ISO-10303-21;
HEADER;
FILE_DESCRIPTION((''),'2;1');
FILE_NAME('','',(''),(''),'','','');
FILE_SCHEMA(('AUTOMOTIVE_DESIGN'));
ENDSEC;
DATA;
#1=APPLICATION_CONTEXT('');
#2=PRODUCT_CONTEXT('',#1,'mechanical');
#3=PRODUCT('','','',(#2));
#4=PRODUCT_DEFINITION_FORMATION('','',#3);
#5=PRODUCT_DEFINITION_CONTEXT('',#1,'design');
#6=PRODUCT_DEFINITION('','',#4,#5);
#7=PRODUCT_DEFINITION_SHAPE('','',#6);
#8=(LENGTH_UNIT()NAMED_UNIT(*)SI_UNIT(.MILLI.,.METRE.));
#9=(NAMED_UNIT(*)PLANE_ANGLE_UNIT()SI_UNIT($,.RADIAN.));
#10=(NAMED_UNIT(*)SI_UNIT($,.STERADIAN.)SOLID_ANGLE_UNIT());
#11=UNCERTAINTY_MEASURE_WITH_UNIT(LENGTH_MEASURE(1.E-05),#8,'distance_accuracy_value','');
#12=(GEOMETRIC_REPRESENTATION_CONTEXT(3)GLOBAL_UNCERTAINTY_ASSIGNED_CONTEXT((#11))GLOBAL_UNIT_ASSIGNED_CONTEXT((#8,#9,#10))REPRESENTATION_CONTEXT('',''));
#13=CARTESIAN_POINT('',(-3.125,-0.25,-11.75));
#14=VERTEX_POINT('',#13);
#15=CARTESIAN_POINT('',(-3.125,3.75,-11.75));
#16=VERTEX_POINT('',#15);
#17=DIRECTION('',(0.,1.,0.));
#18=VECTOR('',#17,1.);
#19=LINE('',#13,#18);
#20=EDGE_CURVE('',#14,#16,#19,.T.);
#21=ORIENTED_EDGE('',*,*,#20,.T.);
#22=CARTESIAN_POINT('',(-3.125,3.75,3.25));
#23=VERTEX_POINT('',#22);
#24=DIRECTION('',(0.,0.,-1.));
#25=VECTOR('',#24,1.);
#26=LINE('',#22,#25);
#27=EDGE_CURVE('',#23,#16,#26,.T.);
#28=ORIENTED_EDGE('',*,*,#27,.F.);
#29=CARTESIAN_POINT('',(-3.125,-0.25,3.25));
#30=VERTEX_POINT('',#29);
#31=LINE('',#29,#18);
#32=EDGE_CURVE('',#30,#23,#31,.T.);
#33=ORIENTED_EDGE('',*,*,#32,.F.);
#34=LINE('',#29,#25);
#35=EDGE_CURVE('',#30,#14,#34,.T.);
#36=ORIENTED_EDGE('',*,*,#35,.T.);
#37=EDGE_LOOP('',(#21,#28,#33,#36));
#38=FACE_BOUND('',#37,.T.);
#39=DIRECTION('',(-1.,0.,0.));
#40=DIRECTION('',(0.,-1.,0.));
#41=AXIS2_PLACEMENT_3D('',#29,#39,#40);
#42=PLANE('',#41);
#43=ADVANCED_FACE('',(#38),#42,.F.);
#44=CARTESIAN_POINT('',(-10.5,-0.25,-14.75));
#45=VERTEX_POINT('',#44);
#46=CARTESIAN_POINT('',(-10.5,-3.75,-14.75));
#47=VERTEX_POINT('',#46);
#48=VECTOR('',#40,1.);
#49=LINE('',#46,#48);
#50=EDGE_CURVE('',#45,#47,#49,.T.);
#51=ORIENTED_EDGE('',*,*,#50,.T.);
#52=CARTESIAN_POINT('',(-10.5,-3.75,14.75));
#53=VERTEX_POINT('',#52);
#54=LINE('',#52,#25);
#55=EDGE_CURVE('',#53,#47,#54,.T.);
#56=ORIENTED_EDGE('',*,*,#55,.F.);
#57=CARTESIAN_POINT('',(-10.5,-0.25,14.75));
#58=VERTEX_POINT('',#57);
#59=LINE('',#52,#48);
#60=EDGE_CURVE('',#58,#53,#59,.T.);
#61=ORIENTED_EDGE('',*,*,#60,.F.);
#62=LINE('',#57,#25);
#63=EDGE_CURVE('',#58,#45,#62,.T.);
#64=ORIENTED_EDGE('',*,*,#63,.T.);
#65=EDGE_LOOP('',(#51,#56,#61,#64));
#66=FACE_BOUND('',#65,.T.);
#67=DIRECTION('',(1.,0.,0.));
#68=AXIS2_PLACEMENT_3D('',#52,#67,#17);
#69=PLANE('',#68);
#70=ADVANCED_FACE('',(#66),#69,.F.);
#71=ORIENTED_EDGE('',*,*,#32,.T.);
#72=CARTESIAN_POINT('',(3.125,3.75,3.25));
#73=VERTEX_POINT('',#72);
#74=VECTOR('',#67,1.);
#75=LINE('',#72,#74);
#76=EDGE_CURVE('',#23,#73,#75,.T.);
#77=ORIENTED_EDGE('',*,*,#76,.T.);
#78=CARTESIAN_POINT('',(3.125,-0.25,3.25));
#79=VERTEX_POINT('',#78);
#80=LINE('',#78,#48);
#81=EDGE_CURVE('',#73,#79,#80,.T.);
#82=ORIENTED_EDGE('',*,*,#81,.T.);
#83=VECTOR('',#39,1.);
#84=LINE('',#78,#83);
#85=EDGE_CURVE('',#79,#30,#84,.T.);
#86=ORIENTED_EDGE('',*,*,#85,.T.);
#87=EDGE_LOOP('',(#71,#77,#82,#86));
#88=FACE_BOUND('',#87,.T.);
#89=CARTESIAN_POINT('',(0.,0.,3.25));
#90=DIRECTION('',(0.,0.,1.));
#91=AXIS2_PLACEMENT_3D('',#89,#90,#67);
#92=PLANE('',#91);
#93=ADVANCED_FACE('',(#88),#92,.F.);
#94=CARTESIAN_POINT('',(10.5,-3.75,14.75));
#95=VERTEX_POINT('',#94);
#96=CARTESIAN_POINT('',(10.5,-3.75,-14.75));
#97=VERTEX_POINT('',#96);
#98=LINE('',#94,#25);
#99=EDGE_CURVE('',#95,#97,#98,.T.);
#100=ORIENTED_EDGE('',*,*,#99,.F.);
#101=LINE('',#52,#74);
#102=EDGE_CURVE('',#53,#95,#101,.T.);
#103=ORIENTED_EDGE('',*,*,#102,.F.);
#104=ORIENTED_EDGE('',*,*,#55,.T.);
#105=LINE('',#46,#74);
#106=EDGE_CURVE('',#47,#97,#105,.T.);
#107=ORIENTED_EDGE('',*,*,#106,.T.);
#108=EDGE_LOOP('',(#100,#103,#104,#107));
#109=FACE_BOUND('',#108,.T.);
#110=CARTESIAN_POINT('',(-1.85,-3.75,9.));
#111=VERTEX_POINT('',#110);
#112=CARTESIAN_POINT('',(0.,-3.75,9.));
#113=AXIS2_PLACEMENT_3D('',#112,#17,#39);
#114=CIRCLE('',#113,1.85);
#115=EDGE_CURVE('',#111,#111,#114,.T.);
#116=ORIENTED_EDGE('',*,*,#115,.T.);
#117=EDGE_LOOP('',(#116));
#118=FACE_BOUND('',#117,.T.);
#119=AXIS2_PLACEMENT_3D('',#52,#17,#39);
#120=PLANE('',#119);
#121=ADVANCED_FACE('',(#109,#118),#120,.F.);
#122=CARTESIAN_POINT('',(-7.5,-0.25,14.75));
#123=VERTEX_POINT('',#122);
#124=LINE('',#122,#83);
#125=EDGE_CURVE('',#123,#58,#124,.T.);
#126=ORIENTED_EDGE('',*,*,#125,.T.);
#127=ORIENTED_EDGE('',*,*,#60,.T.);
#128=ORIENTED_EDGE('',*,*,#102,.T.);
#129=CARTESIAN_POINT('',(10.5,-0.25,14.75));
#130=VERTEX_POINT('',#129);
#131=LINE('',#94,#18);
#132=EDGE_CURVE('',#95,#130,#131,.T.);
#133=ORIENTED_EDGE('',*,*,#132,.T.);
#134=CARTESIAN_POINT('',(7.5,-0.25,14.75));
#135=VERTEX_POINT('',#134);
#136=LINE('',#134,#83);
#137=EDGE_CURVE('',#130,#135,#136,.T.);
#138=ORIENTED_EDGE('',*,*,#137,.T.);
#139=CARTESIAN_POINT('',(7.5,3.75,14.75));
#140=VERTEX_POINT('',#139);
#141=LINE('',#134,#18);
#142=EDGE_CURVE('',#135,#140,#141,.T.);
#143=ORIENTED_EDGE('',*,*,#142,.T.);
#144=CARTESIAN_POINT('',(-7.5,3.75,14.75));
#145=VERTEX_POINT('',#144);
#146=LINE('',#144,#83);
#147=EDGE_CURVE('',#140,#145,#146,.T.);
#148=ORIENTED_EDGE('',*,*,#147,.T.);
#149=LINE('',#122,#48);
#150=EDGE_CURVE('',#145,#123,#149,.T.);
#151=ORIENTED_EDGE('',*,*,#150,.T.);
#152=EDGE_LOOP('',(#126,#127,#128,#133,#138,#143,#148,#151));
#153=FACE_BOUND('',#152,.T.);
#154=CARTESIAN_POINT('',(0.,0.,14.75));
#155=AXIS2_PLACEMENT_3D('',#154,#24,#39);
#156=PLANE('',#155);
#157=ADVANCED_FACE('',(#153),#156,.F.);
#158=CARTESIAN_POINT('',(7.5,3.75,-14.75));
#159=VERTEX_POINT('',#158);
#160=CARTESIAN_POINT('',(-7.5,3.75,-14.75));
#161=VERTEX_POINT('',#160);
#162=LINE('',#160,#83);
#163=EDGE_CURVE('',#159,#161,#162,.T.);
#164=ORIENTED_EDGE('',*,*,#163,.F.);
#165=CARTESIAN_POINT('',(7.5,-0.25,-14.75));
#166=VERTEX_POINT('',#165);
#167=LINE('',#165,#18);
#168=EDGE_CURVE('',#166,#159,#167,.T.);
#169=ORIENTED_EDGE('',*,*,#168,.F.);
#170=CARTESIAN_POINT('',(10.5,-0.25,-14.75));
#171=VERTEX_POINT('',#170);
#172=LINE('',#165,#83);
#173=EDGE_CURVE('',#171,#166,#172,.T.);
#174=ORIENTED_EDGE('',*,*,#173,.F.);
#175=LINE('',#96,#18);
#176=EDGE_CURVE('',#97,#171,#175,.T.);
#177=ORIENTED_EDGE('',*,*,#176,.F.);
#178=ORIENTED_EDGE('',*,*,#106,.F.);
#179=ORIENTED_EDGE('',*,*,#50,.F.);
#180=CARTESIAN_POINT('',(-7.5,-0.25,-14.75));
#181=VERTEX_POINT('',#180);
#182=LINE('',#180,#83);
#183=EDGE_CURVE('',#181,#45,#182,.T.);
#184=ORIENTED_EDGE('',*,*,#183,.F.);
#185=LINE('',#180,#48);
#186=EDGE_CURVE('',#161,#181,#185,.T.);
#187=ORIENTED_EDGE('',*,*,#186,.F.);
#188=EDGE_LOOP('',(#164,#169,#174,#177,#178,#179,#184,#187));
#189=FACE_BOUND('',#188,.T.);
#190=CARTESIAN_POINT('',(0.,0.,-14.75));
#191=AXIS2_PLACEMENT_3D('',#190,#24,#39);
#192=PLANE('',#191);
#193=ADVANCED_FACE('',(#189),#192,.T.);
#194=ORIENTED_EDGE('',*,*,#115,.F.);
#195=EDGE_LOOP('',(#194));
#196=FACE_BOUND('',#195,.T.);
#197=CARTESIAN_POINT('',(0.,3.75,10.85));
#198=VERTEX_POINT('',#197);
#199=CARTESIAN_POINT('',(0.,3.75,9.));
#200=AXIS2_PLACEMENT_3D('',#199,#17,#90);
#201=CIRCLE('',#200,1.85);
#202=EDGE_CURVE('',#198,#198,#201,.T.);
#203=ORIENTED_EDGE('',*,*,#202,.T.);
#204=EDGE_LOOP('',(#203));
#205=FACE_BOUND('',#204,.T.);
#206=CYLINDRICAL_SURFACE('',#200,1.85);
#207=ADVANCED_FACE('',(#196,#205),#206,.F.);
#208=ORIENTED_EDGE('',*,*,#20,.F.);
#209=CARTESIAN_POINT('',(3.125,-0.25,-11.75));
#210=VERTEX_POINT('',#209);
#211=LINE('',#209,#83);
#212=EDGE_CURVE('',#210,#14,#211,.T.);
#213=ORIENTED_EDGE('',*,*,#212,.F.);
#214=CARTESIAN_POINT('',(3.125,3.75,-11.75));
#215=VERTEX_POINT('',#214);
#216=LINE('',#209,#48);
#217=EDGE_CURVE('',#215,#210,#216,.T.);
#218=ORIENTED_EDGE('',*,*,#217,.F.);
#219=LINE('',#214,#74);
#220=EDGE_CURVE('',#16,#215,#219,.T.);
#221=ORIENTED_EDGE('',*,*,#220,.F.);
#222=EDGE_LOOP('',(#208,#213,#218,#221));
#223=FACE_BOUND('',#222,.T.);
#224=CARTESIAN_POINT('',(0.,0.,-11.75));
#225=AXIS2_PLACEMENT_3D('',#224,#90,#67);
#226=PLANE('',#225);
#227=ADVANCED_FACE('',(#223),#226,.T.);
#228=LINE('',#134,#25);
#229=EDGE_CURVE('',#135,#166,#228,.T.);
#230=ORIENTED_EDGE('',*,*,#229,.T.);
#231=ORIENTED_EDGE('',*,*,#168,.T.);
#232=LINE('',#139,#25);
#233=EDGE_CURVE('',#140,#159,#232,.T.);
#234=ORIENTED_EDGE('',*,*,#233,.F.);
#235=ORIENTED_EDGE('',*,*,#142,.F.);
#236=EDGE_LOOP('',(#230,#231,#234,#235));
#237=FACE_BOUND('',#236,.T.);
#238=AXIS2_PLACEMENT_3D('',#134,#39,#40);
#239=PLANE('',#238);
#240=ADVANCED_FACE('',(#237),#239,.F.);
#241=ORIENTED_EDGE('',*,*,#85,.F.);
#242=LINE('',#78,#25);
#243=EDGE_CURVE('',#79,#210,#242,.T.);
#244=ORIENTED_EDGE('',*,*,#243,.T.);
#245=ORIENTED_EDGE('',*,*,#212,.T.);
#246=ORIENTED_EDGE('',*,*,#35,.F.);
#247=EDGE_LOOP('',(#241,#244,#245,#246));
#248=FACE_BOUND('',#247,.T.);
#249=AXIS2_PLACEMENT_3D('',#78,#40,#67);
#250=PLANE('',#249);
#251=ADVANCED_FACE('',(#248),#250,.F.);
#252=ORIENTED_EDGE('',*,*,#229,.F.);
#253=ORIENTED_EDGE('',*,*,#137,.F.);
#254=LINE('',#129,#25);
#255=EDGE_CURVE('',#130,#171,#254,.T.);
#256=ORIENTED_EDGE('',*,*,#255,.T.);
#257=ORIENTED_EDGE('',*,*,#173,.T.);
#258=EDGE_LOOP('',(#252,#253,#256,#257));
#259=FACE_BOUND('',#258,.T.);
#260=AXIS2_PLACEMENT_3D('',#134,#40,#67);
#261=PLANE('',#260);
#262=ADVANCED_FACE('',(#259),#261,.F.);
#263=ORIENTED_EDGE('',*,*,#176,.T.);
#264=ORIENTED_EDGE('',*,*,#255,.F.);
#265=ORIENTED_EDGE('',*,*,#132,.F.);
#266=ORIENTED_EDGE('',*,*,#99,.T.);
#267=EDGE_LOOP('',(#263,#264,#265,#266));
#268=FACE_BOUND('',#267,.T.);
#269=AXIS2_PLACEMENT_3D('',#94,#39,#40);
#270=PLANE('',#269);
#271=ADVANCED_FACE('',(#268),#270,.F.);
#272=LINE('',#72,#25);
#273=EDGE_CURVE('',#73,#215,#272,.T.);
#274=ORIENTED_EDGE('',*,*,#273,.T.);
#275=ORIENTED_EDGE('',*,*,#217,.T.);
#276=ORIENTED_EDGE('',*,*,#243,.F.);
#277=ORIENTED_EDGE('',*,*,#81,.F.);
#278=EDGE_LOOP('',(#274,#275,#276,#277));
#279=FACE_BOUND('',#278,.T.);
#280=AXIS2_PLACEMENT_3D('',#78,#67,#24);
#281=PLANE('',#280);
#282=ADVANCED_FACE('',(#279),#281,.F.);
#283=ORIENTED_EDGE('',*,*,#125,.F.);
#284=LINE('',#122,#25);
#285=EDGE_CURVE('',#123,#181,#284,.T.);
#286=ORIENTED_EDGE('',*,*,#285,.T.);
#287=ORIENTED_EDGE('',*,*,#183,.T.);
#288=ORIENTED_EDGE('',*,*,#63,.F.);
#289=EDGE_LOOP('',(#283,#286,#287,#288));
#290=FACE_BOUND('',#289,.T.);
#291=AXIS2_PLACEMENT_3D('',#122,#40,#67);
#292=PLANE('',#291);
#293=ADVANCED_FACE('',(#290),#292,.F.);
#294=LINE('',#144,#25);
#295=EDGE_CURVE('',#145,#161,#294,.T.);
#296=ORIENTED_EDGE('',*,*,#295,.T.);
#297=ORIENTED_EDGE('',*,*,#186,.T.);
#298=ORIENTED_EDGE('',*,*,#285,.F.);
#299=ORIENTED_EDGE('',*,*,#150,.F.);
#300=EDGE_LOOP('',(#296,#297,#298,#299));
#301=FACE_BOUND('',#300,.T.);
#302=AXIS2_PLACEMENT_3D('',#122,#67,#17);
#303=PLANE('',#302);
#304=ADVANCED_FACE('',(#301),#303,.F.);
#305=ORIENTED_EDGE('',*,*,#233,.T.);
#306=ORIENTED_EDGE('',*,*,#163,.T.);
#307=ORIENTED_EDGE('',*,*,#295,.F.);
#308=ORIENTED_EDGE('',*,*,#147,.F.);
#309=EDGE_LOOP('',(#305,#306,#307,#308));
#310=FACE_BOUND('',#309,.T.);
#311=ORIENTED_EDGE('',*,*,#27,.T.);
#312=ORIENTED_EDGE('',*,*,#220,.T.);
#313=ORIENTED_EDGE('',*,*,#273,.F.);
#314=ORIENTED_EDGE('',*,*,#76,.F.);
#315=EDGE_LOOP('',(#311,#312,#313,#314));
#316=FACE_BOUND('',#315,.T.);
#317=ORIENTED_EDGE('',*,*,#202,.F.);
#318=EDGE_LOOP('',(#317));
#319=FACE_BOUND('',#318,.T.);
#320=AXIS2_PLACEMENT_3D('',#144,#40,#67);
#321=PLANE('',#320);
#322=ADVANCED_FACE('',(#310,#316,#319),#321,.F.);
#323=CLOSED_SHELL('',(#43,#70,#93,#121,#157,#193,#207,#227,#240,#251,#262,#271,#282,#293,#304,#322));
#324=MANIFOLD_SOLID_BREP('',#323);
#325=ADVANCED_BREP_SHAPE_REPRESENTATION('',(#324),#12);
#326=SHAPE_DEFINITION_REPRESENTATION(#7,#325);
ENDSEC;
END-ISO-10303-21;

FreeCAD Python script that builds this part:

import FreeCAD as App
import Part
import Sketcher


def add_polygon(sketch, points):
    """Adds a closed chain of lines whose ends are joined by coincident constraints."""
    first, n = sketch.GeometryCount, len(points)
    for a, b in zip(points, points[1:] + points[:1]):
        sketch.addGeometry(Part.LineSegment(App.Vector(*a, 0), App.Vector(*b, 0)), False)
    for i in range(n):
        sketch.addConstraint(Sketcher.Constraint("Coincident", first + i, 2, first + (i + 1) % n, 1))

doc = App.newDocument("Part")
body = doc.addObject("PartDesign::Body", "Body")

sketch1 = body.newObject("Sketcher::SketchObject", "Sketch")
sketch1.AttachmentSupport = (doc.getObject("XY_Plane"), [""])
sketch1.MapMode = "FlatFace"
add_polygon(sketch1, [(-7.5, 3.8), (-7.5, -0.2), (-10.5, -0.2), (-10.5, -3.8), (10.5, -3.8), (10.5, -0.2), (7.5, -0.2), (7.5, 3.8)])
sketch1.addConstraint([
    Sketcher.Constraint("Vertical", 0),
    Sketcher.Constraint("Horizontal", 1),
    Sketcher.Constraint("Vertical", 2),
    Sketcher.Constraint("Horizontal", 3),
    Sketcher.Constraint("Vertical", 4),
    Sketcher.Constraint("Horizontal", 5),
    Sketcher.Constraint("Vertical", 6),
    Sketcher.Constraint("Horizontal", 7),
    Sketcher.Constraint("Symmetric", 1, 2, 4, 2, -2),
    Sketcher.Constraint("Equal", 1, 5),
    Sketcher.Constraint("DistanceX", 1, 2, 1, 1, 3.0),
    Sketcher.Constraint("DistanceX", 3, 1, 3, 2, 21.0),
    Sketcher.Constraint("DistanceY", 0, 2, 0, 1, 4.0),
    Sketcher.Constraint("DistanceY", 2, 2, 2, 1, 3.5),
    Sketcher.Constraint("DistanceY", 0, 2, -1, 1, 0.25),
])
pad1 = body.newObject("PartDesign::Pad", "Pad")
pad1.Profile = sketch1
pad1.Length = 29.5
pad1.Midplane = True

sketch2 = body.newObject("Sketcher::SketchObject", "Sketch001")
sketch2.AttachmentSupport = (doc.getObject("XY_Plane"), [""])
sketch2.MapMode = "FlatFace"
sketch2.AttachmentOffset = App.Placement(App.Vector(0, 0, -11.75), App.Rotation())
add_polygon(sketch2, [(3.1, 3.8), (3.1, -0.2), (-3.1, -0.2), (-3.1, 3.8)])
sketch2.addConstraint([
    Sketcher.Constraint("Vertical", 0),
    Sketcher.Constraint("Horizontal", 1),
    Sketcher.Constraint("Vertical", 2),
    Sketcher.Constraint("Horizontal", 3),
    Sketcher.Constraint("DistanceY", 0, 2, 0, 1, 4.0),
    Sketcher.Constraint("DistanceX", 1, 2, 1, 1, 6.25),
    Sketcher.Constraint("DistanceY", 0, 2, -1, 1, 0.25),
    Sketcher.Constraint("DistanceX", -1, 1, 0, 2, 3.125),
])
pocket1 = body.newObject("PartDesign::Pocket", "Pocket")
pocket1.Profile = sketch2
pocket1.Length = 15
pocket1.Reversed = True

sketch3 = body.newObject("Sketcher::SketchObject", "Sketch002")
sketch3.AttachmentSupport = (doc.getObject("XZ_Plane"), [""])
sketch3.MapMode = "FlatFace"
sketch3.AttachmentOffset = App.Placement(App.Vector(0, 0, -3.75), App.Rotation())
sketch3.addGeometry(Part.Circle(App.Vector(0, 9, 0), App.Vector(0, 0, 1), 1.9), False)
sketch3.addConstraint([
    Sketcher.Constraint("PointOnObject", 0, 3, -2),
    Sketcher.Constraint("Diameter", 0, 3.7),
    Sketcher.Constraint("DistanceY", -1, 1, 0, 3, 9.0),
])
doc.recompute()
hole = body.newObject("PartDesign::Hole", "Hole")
hole.Profile = sketch3
hole.ThreadType = "None"
hole.Diameter = 3.7
hole.DepthType = "ThroughAll"
hole.Reversed = True

doc.recompute()
